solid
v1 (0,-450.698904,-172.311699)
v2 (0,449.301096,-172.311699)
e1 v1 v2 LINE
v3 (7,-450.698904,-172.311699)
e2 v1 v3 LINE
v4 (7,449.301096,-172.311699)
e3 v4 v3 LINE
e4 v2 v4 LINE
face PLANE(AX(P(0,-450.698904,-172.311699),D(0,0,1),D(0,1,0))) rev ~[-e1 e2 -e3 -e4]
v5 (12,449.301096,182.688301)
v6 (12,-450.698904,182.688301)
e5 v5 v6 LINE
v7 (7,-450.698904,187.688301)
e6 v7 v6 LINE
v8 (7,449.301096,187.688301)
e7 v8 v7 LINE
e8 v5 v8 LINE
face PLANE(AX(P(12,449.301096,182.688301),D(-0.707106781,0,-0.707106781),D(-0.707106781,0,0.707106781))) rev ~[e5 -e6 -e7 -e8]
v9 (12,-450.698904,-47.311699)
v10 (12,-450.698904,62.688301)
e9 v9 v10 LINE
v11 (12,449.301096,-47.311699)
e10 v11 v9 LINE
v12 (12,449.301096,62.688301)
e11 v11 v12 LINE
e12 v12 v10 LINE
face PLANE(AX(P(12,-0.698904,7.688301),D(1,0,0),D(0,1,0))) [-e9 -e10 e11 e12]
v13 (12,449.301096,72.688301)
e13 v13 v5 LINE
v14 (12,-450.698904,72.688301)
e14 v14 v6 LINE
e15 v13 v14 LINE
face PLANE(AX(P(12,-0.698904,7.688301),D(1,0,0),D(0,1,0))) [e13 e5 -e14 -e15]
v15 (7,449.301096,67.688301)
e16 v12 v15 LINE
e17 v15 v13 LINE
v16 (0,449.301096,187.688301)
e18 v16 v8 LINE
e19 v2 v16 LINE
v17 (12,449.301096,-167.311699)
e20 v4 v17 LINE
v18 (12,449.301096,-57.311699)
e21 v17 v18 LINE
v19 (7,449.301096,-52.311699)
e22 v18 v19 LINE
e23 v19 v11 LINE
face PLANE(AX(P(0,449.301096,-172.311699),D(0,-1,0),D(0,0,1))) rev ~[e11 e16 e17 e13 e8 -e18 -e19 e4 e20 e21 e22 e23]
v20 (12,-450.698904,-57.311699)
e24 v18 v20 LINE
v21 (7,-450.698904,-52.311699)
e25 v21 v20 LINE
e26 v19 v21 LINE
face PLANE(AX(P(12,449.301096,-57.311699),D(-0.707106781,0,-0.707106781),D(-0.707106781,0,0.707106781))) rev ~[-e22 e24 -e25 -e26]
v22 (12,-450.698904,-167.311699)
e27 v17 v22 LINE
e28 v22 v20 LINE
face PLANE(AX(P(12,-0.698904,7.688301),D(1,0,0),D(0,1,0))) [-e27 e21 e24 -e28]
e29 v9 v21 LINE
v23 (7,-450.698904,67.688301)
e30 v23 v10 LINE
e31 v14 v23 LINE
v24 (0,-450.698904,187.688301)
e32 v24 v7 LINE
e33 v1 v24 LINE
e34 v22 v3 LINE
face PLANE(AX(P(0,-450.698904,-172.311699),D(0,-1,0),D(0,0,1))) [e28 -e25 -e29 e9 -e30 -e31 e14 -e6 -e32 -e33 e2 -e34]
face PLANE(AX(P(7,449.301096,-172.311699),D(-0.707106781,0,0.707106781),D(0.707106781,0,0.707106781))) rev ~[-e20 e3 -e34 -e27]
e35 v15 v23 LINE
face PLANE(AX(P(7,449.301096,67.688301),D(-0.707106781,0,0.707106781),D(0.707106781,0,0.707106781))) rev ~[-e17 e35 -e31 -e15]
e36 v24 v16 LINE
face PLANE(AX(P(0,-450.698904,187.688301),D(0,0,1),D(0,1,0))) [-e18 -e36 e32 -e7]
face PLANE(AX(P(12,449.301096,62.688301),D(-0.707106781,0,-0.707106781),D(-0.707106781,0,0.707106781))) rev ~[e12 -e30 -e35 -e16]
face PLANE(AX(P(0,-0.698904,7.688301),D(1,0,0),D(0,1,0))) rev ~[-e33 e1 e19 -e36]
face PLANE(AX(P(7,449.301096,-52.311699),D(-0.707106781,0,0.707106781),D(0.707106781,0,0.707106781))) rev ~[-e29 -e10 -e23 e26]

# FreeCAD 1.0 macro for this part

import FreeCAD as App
import Part
import Sketcher

V = App.Vector

doc = App.newDocument("Part")
body = doc.addObject("PartDesign::Body", "Body")

sketch1 = body.newObject("Sketcher::SketchObject", "Sketch")
sketch1.AttachmentSupport = (doc.getObject("YZ_Plane"), [""])
sketch1.MapMode = "FlatFace"
sketch1.addGeometry(Part.LineSegment(V(-450.698904, 187.688301, 0), V(-450.698904, -172.311699, 0)), False)
sketch1.addGeometry(Part.LineSegment(V(-450.698904, -172.311699, 0), V(449.301096, -172.311699, 0)), False)
sketch1.addGeometry(Part.LineSegment(V(449.301096, -172.311699, 0), V(449.301096, 187.688301, 0)), False)
sketch1.addGeometry(Part.LineSegment(V(449.301096, 187.688301, 0), V(-450.698904, 187.688301, 0)), False)
sketch1.addConstraint(Sketcher.Constraint("Coincident", 0, 2, 1, 1))
sketch1.addConstraint(Sketcher.Constraint("Coincident", 1, 2, 2, 1))
sketch1.addConstraint(Sketcher.Constraint("Coincident", 2, 2, 3, 1))
sketch1.addConstraint(Sketcher.Constraint("Coincident", 3, 2, 0, 1))
sketch1.addConstraint(Sketcher.Constraint("Vertical", 0))
sketch1.addConstraint(Sketcher.Constraint("Horizontal", 1))
sketch1.addConstraint(Sketcher.Constraint("Vertical", 2))
sketch1.addConstraint(Sketcher.Constraint("Horizontal", 3))
sketch1.addConstraint(Sketcher.Constraint("DistanceX", 1, 1, 1, 2, 900.0))
sketch1.addConstraint(Sketcher.Constraint("DistanceY", 0, 2, 0, 1, 360.0))
sketch1.addConstraint(Sketcher.Constraint("DistanceY", 0, 2, -1, 1, 172.311699))
sketch1.addConstraint(Sketcher.Constraint("DistanceX", 0, 2, -1, 1, 450.698904))
pad1 = body.newObject("PartDesign::Pad", "Pad")
pad1.Profile = sketch1
pad1.Length = 12

sketch2 = body.newObject("Sketcher::SketchObject", "Sketch001")
sketch2.AttachmentSupport = (doc.getObject("XZ_Plane"), [""])
sketch2.MapMode = "FlatFace"
sketch2.AttachmentOffset = App.Placement(V(0, 0, -449.301096), App.Rotation())
sketch2.addGeometry(Part.LineSegment(V(12, -167.311699, 0), V(12, -172.311699, 0)), False)
sketch2.addGeometry(Part.LineSegment(V(12, -172.311699, 0), V(7, -172.311699, 0)), False)
sketch2.addGeometry(Part.LineSegment(V(7, -172.311699, 0), V(12, -167.311699, 0)), False)
sketch2.addGeometry(Part.LineSegment(V(12, -57.311699, 0), V(7, -52.311699, 0)), False)
sketch2.addGeometry(Part.LineSegment(V(7, -52.311699, 0), V(12, -47.311699, 0)), False)
sketch2.addGeometry(Part.LineSegment(V(12, -47.311699, 0), V(12, -57.311699, 0)), False)
sketch2.addGeometry(Part.LineSegment(V(12, 62.688301, 0), V(7, 67.688301, 0)), False)
sketch2.addGeometry(Part.LineSegment(V(7, 67.688301, 0), V(12, 72.688301, 0)), False)
sketch2.addGeometry(Part.LineSegment(V(12, 72.688301, 0), V(12, 62.688301, 0)), False)
sketch2.addGeometry(Part.LineSegment(V(7, 187.688301, 0), V(12, 187.688301, 0)), False)
sketch2.addGeometry(Part.LineSegment(V(12, 187.688301, 0), V(12, 182.688301, 0)), False)
sketch2.addGeometry(Part.LineSegment(V(12, 182.688301, 0), V(7, 187.688301, 0)), False)
sketch2.addConstraint(Sketcher.Constraint("Coincident", 0, 2, 1, 1))
sketch2.addConstraint(Sketcher.Constraint("Coincident", 1, 2, 2, 1))
sketch2.addConstraint(Sketcher.Constraint("Coincident", 2, 2, 0, 1))
sketch2.addConstraint(Sketcher.Constraint("Coincident", 3, 2, 4, 1))
sketch2.addConstraint(Sketcher.Constraint("Coincident", 4, 2, 5, 1))
sketch2.addConstraint(Sketcher.Constraint("Coincident", 5, 2, 3, 1))
sketch2.addConstraint(Sketcher.Constraint("Coincident", 6, 2, 7, 1))
sketch2.addConstraint(Sketcher.Constraint("Coincident", 7, 2, 8, 1))
sketch2.addConstraint(Sketcher.Constraint("Coincident", 8, 2, 6, 1))
sketch2.addConstraint(Sketcher.Constraint("Coincident", 9, 2, 10, 1))
sketch2.addConstraint(Sketcher.Constraint("Coincident", 10, 2, 11, 1))
sketch2.addConstraint(Sketcher.Constraint("Coincident", 11, 2, 9, 1))
sketch2.addConstraint(Sketcher.Constraint("Vertical", 0))
sketch2.addConstraint(Sketcher.Constraint("Horizontal", 1))
sketch2.addConstraint(Sketcher.Constraint("Vertical", 5))
sketch2.addConstraint(Sketcher.Constraint("Vertical", 8))
sketch2.addConstraint(Sketcher.Constraint("Horizontal", 9))
sketch2.addConstraint(Sketcher.Constraint("Vertical", 10))
sketch2.addConstraint(Sketcher.Constraint("Perpendicular", 2, 3))
sketch2.addConstraint(Sketcher.Constraint("Perpendicular", 3, 4))
sketch2.addConstraint(Sketcher.Constraint("Perpendicular", 4, 6))
sketch2.addConstraint(Sketcher.Constraint("Perpendicular", 6, 7))
sketch2.addConstraint(Sketcher.Constraint("Perpendicular", 7, 11))
sketch2.addConstraint(Sketcher.Constraint("Vertical", 1, 2, 3, 2))
sketch2.addConstraint(Sketcher.Constraint("Vertical", 2, 2, 4, 2))
sketch2.addConstraint(Sketcher.Constraint("Vertical", 3, 2, 6, 2))
sketch2.addConstraint(Sketcher.Constraint("Vertical", 5, 2, 7, 2))
sketch2.addConstraint(Sketcher.Constraint("Vertical", 8, 2, 9, 2))
sketch2.addConstraint(Sketcher.Constraint("Vertical", 6, 2, 11, 2))
sketch2.addConstraint(Sketcher.Constraint("Equal", 9, 0))
sketch2.addConstraint(Sketcher.Constraint("DistanceX", 1, 2, 1, 1, 5.0))
sketch2.addConstraint(Sketcher.Constraint("DistanceX", -1, 1, 0, 2, 12.0))
sketch2.addConstraint(Sketcher.Constraint("DistanceY", 2, 2, 3, 2, 115.0))
sketch2.addConstraint(Sketcher.Constraint("DistanceY", 4, 2, 6, 2, 115.0))
sketch2.addConstraint(Sketcher.Constraint("DistanceY", 7, 2, 9, 2, 115.0))
sketch2.addConstraint(Sketcher.Constraint("DistanceY", 0, 2, -1, 1, 172.311699))
pocket1 = body.newObject("PartDesign::Pocket", "Pocket")
pocket1.Profile = sketch2
pocket1.Type = "ThroughAll"
pocket1.Reversed = True

doc.recompute()
